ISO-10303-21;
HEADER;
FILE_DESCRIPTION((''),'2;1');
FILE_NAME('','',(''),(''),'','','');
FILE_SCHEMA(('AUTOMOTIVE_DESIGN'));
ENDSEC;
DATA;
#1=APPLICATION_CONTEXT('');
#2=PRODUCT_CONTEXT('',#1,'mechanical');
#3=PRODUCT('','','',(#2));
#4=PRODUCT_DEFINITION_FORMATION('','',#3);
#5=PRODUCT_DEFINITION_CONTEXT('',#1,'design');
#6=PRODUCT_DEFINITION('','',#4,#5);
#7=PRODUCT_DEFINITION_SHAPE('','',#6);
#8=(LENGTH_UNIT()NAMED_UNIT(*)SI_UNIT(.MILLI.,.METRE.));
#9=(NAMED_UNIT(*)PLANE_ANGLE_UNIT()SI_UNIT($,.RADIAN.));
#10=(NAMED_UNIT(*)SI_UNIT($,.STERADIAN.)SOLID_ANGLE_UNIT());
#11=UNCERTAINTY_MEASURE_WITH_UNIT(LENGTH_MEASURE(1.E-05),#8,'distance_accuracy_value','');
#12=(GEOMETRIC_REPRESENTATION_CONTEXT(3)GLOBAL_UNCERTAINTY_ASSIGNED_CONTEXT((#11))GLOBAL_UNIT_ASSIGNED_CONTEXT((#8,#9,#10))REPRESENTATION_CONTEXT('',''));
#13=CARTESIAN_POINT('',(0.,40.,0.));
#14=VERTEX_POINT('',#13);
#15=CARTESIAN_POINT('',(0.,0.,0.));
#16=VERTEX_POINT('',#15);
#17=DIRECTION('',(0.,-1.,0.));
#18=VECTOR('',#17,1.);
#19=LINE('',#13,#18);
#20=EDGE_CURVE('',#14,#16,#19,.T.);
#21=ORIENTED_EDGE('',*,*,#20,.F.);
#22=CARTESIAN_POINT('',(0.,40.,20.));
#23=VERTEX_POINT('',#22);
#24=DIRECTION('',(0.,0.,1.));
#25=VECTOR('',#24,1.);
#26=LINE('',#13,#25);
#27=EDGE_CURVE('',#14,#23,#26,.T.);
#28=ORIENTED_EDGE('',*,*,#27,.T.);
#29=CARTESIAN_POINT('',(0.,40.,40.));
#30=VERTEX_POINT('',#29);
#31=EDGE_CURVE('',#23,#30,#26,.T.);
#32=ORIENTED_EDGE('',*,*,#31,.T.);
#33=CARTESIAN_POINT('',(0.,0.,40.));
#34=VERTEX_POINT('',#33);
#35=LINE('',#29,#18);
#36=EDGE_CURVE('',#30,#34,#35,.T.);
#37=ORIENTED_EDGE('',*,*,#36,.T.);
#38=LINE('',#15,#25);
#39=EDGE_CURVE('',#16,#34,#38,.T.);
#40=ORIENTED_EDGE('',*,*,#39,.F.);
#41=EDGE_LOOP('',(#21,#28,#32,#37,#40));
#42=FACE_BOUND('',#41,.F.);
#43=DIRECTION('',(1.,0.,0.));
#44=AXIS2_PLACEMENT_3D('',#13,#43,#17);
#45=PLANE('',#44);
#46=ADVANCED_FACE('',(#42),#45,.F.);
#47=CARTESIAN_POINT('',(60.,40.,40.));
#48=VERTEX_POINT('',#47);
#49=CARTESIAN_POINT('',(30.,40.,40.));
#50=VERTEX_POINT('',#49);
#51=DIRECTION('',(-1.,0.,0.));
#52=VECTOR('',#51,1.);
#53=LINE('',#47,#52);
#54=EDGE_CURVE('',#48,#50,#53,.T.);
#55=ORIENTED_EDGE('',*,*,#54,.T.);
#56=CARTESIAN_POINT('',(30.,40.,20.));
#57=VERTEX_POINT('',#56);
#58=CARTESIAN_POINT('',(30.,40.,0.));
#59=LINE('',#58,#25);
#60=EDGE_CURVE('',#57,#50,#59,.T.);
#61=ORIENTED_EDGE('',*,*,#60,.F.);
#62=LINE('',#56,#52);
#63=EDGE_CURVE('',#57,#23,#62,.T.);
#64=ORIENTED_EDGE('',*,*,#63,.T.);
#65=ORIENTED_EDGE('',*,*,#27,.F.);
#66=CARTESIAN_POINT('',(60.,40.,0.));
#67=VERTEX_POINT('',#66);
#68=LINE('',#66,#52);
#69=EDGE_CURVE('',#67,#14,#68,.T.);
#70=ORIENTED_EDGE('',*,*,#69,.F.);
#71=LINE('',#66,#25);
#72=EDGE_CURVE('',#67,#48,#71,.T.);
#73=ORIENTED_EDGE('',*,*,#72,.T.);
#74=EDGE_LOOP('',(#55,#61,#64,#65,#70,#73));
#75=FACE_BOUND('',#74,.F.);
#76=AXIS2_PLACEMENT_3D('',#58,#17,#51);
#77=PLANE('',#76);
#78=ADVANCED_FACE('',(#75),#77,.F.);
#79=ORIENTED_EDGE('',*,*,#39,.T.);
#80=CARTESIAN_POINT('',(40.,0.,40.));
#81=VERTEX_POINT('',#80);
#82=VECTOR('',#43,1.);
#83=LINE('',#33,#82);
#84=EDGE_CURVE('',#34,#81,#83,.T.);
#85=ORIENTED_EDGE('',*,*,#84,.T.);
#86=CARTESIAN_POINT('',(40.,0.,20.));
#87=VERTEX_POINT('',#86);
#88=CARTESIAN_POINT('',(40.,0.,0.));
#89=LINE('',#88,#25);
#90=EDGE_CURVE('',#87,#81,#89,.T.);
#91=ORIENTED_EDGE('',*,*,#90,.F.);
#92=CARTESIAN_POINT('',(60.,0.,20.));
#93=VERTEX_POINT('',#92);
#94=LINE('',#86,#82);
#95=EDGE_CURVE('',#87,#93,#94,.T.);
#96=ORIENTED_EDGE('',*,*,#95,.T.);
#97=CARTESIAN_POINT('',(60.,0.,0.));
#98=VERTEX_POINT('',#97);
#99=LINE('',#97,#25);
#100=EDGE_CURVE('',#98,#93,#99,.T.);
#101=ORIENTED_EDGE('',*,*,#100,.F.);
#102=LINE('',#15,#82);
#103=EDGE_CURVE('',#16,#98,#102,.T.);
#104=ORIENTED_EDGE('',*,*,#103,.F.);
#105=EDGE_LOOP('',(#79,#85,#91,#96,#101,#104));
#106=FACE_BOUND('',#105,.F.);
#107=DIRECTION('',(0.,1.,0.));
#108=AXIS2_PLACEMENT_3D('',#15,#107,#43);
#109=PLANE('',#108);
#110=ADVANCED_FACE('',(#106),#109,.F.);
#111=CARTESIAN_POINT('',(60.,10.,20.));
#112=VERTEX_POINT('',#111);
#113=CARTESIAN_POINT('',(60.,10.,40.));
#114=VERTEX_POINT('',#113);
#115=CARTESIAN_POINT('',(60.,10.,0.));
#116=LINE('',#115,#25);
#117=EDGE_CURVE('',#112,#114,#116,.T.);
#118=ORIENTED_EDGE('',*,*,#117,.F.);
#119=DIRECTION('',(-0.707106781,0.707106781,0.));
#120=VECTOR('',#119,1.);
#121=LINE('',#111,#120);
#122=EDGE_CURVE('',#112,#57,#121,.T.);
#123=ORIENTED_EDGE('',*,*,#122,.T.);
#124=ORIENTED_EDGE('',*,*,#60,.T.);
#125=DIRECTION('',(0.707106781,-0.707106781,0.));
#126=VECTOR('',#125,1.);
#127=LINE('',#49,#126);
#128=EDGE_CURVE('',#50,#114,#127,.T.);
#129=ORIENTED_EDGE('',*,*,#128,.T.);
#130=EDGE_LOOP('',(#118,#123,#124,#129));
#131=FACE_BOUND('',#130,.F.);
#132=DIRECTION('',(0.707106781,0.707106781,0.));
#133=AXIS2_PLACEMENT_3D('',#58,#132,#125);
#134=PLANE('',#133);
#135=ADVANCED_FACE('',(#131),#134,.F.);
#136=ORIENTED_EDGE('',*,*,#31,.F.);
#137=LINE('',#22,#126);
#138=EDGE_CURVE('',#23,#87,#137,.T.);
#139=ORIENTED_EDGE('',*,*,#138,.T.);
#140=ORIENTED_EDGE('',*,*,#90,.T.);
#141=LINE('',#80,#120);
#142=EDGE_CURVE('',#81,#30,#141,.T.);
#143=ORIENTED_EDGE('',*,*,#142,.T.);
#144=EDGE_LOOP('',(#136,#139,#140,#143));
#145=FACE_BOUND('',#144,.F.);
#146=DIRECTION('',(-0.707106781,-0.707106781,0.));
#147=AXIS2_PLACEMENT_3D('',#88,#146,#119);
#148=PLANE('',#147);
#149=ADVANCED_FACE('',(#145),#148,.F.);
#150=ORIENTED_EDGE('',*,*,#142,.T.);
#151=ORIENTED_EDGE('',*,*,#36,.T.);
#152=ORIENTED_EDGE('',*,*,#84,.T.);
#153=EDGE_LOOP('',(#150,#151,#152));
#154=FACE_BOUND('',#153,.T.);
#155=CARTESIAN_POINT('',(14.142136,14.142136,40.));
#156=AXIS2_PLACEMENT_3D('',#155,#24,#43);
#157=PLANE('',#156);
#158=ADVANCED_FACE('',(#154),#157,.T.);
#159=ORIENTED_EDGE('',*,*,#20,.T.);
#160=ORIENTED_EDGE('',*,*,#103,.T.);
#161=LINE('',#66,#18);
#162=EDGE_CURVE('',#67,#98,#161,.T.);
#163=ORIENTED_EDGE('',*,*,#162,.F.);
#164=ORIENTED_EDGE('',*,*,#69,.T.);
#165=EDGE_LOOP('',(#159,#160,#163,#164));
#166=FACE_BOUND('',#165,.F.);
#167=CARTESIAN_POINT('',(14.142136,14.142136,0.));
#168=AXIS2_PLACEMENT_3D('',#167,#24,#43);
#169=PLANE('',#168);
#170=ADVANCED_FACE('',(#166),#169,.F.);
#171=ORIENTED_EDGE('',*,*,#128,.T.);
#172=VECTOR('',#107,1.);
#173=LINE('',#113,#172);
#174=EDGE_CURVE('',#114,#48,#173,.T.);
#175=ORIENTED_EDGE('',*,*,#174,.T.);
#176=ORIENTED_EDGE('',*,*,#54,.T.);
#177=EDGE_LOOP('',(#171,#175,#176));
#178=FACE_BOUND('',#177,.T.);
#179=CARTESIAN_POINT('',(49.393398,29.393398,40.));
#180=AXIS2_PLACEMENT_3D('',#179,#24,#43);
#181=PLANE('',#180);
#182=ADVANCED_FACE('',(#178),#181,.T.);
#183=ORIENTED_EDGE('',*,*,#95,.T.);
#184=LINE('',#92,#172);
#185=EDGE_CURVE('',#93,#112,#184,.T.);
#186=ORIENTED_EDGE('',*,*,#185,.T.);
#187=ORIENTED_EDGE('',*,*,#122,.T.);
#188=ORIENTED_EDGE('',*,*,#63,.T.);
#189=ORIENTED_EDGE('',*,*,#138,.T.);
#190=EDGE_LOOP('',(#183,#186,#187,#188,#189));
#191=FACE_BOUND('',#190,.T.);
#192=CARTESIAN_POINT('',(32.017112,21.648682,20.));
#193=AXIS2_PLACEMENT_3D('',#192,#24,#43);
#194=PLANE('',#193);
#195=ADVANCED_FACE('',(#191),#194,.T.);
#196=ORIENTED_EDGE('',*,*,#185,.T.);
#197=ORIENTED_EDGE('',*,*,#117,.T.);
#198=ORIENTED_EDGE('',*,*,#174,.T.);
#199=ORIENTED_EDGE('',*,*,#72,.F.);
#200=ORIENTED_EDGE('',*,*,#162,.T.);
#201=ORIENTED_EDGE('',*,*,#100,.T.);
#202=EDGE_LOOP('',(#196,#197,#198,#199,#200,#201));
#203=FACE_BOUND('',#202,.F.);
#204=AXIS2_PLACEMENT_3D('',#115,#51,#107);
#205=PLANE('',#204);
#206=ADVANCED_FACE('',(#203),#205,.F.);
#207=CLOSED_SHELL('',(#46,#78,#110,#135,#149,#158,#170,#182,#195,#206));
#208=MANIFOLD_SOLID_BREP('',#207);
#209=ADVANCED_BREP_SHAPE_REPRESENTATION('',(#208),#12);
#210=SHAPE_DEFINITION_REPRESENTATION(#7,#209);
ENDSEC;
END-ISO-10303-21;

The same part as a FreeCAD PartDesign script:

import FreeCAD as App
import Part
import Sketcher


def add_polygon(sketch, points):
    """Adds a closed chain of lines whose ends are joined by coincident constraints."""
    first, n = sketch.GeometryCount, len(points)
    for a, b in zip(points, points[1:] + points[:1]):
        sketch.addGeometry(Part.LineSegment(App.Vector(*a, 0), App.Vector(*b, 0)), False)
    for i in range(n):
        sketch.addConstraint(Sketcher.Constraint("Coincident", first + i, 2, first + (i + 1) % n, 1))

doc = App.newDocument("Part")
body = doc.addObject("PartDesign::Body", "Body")

sketch1 = body.newObject("Sketcher::SketchObject", "Sketch")
sketch1.AttachmentSupport = (doc.getObject("XY_Plane"), [""])
sketch1.MapMode = "FlatFace"
add_polygon(sketch1, [(0, 40), (40, 0), (60, 0), (60, 10), (30, 40)])
sketch1.addConstraint([
    Sketcher.Constraint("Horizontal", 1),
    Sketcher.Constraint("Vertical", 2),
    Sketcher.Constraint("Horizontal", 4),
    Sketcher.Constraint("PointOnObject", 0, 2, -1),
    Sketcher.Constraint("PointOnObject", 4, 2, -2),
    Sketcher.Constraint("Parallel", 0, 3),
    Sketcher.Constraint("DistanceX", 1, 1, 1, 2, 20.0),
    Sketcher.Constraint("DistanceX", 4, 2, 4, 1, 30.0),
    Sketcher.Constraint("DistanceY", 2, 1, 2, 2, 10.0),
    Sketcher.Constraint("DistanceX", -1, 1, 0, 2, 40.0),
])
pad1 = body.newObject("PartDesign::Pad", "Pad")
pad1.Profile = sketch1
pad1.Length = 20

sketch2 = body.newObject("Sketcher::SketchObject", "Sketch001")
sketch2.AttachmentSupport = (doc.getObject("XY_Plane"), [""])
sketch2.MapMode = "FlatFace"
add_polygon(sketch2, [(0, 40), (0, 0), (40, 0)])
add_polygon(sketch2, [(60, 40), (30, 40), (60, 10)])
sketch2.addConstraint([
    Sketcher.Constraint("Vertical", 0),
    Sketcher.Constraint("Horizontal", 1),
    Sketcher.Constraint("Horizontal", 3),
    Sketcher.Constraint("Vertical", 5),
    Sketcher.Constraint("Coincident", 0, 2, -1, 1),
    Sketcher.Constraint("Parallel", 2, 4),
    Sketcher.Constraint("Horizontal", 2, 2, 3, 2),
    Sketcher.Constraint("Equal", 1, 0),
    Sketcher.Constraint("DistanceX", 1, 1, 1, 2, 40.0),
    Sketcher.Constraint("DistanceX", 3, 2, 3, 1, 30.0),
    Sketcher.Constraint("DistanceX", -1, 1, 3, 2, 30.0),
])
pad2 = body.newObject("PartDesign::Pad", "Pad001")
pad2.Profile = sketch2
pad2.Length = 40

doc.recompute()
